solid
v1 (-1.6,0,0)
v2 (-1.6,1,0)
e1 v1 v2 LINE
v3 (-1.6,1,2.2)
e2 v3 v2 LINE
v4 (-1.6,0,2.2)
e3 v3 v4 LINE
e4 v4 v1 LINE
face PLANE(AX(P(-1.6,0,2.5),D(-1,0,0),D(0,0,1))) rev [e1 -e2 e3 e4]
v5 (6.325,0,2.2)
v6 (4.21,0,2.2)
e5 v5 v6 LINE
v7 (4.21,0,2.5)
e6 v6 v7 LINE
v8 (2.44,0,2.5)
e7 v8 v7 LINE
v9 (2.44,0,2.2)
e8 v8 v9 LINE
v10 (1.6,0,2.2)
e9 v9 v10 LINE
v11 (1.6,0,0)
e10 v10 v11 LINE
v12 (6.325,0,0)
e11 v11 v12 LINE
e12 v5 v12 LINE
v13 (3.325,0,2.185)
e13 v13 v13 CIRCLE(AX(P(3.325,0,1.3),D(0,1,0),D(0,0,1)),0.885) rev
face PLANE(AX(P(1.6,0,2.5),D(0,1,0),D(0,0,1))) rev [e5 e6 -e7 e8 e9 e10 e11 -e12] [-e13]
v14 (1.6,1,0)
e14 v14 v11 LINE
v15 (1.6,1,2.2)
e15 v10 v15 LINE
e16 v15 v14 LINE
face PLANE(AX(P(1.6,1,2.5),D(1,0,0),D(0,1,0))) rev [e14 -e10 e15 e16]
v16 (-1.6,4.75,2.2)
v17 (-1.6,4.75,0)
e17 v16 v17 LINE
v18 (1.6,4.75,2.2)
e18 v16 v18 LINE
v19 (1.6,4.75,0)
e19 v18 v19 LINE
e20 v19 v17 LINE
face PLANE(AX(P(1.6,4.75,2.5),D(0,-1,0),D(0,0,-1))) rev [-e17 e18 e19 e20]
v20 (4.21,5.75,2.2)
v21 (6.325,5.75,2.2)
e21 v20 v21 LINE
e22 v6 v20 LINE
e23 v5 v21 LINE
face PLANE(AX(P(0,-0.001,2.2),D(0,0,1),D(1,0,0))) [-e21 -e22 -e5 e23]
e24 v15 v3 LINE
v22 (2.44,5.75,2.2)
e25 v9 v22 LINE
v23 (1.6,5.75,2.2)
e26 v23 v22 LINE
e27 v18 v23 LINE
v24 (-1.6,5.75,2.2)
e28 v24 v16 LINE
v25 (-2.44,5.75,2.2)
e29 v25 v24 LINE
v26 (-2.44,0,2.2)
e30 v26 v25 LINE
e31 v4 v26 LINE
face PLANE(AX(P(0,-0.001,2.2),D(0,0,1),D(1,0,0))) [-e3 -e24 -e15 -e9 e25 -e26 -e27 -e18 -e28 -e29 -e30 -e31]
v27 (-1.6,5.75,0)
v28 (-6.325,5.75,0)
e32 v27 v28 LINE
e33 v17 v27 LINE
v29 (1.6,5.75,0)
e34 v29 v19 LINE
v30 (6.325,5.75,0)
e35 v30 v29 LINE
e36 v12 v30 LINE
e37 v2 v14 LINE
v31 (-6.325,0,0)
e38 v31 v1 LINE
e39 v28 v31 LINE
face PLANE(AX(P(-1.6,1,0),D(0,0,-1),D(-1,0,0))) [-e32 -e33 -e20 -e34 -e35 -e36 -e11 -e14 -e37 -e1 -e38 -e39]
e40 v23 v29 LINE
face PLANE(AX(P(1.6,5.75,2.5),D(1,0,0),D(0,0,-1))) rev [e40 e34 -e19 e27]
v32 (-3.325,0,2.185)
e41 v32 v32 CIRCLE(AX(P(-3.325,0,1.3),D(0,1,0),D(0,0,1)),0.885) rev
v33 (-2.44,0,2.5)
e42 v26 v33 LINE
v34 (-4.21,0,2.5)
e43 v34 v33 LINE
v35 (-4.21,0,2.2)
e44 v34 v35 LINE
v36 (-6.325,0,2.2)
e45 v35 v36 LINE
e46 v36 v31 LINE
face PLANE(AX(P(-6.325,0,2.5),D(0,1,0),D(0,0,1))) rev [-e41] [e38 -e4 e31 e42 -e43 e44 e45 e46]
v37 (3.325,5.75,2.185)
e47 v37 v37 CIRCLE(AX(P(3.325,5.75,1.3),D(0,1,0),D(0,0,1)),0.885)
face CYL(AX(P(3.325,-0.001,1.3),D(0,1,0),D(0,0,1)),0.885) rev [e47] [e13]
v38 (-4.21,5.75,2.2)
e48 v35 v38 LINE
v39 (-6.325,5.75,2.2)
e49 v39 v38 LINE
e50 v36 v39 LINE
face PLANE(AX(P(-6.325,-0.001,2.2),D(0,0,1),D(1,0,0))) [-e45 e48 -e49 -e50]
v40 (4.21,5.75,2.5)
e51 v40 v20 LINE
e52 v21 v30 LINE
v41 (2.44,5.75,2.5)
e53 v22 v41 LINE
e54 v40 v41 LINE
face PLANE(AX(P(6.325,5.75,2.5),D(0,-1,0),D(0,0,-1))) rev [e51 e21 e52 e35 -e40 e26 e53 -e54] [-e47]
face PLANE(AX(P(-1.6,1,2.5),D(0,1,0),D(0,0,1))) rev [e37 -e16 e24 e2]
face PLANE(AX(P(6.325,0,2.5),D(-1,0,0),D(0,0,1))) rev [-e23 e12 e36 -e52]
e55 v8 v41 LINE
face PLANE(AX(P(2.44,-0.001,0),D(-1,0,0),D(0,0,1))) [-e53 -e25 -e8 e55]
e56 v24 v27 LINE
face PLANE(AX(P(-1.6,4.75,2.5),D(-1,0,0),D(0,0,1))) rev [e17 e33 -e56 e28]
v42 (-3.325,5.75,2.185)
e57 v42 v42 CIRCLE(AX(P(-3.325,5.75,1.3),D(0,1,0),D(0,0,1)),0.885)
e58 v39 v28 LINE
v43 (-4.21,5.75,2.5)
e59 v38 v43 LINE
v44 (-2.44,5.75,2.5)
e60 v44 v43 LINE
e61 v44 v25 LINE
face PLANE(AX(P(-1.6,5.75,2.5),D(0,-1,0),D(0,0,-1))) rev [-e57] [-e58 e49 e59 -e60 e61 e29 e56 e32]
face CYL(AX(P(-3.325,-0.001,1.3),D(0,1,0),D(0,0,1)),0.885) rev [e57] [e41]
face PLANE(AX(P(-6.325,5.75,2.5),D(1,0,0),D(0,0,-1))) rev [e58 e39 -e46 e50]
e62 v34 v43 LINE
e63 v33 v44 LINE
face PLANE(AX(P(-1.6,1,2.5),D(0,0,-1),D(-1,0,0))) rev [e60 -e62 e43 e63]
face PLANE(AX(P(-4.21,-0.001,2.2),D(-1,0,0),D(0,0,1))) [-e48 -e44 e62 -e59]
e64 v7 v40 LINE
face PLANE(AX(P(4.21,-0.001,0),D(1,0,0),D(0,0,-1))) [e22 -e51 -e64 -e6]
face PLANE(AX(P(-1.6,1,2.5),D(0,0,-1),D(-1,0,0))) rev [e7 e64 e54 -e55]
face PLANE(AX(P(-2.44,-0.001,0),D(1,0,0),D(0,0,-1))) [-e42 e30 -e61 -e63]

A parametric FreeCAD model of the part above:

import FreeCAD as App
import Part
import Sketcher
from FreeCAD import Vector
Q = App.Units.Quantity

doc = App.newDocument("Part")
params = doc.addObject("Spreadsheet::Sheet", "Params")
for row, (alias, value) in enumerate([
    ("sketch1_height", "1 mm"),
    ("sketch1_width", "3.2 mm"),
    ("sketch1_height2", "5.75 mm"),
    ("pad1_length", "2.5 mm"),
    ("sketch2_diameter", "1.77 mm"),
    ("sketch3_diameter", "1.77 mm"),
    ("sketch4_height", "0.3 mm"),
    ("sketch4_width", "4.04 mm"),
    ("pocket3_length", "5.75 mm"),
    ("sketch5_height", "0.3 mm"),
    ("sketch5_width", "0.84 mm"),
    ("sketch6_height", "0.3 mm"),
    ("sketch7_height", "0.3 mm"),
], start=1):
    params.set(f"A{row}", alias)
    params.set(f"B{row}", "=" + value)
    params.setAlias(f"B{row}", alias)

body = doc.addObject("PartDesign::Body", "Body")

# Sketch on XY plane
sketch1 = body.newObject("Sketcher::SketchObject", "Sketch")
sketch1.AttachmentSupport = (doc.getObject("XY_Plane"), [""])
sketch1.MapMode = "FlatFace"
sketch1.addGeometry([
    Part.LineSegment(Vector(-1.6, 1, 0), Vector(1.6, 1, 0)),  # 0
    Part.LineSegment(Vector(1.6, 1, 0), Vector(1.6, 0, 0)),  # 1
    Part.LineSegment(Vector(1.6, 0, 0), Vector(6.3, 0, 0)),  # 2
    Part.LineSegment(Vector(6.3, 0, 0), Vector(6.3, 5.8, 0)),  # 3
    Part.LineSegment(Vector(6.3, 5.8, 0), Vector(1.6, 5.8, 0)),  # 4
    Part.LineSegment(Vector(1.6, 5.8, 0), Vector(1.6, 4.8, 0)),  # 5
    Part.LineSegment(Vector(1.6, 4.8, 0), Vector(-1.6, 4.8, 0)),  # 6
    Part.LineSegment(Vector(-1.6, 4.8, 0), Vector(-1.6, 5.8, 0)),  # 7
    Part.LineSegment(Vector(-1.6, 5.8, 0), Vector(-6.3, 5.8, 0)),  # 8
    Part.LineSegment(Vector(-6.3, 5.8, 0), Vector(-6.3, 0, 0)),  # 9
    Part.LineSegment(Vector(-6.3, 0, 0), Vector(-1.6, 0, 0)),  # 10
    Part.LineSegment(Vector(-1.6, 0, 0), Vector(-1.6, 1, 0)),  # 11
], False)
sketch1.addConstraint([
    Sketcher.Constraint("Coincident", 0, 2, 1, 1),
    Sketcher.Constraint("Coincident", 1, 2, 2, 1),
    Sketcher.Constraint("Coincident", 2, 2, 3, 1),
    Sketcher.Constraint("Coincident", 3, 2, 4, 1),
    Sketcher.Constraint("Coincident", 4, 2, 5, 1),
    Sketcher.Constraint("Coincident", 5, 2, 6, 1),
    Sketcher.Constraint("Coincident", 6, 2, 7, 1),
    Sketcher.Constraint("Coincident", 7, 2, 8, 1),
    Sketcher.Constraint("Coincident", 8, 2, 9, 1),
    Sketcher.Constraint("Coincident", 9, 2, 10, 1),
    Sketcher.Constraint("Coincident", 10, 2, 11, 1),
    Sketcher.Constraint("Coincident", 11, 2, 0, 1),
    Sketcher.Constraint("Horizontal", 0),
    Sketcher.Constraint("Vertical", 1),
    Sketcher.Constraint("Horizontal", 2),
    Sketcher.Constraint("Vertical", 3),
    Sketcher.Constraint("Horizontal", 4),
    Sketcher.Constraint("Vertical", 5),
    Sketcher.Constraint("Horizontal", 6),
    Sketcher.Constraint("Vertical", 7),
    Sketcher.Constraint("Horizontal", 8),
    Sketcher.Constraint("Vertical", 9),
    Sketcher.Constraint("Horizontal", 10),
    Sketcher.Constraint("Vertical", 11),
    Sketcher.Constraint("Symmetric", 2, 2, 9, 2, -1, 1),
    Sketcher.Constraint("Symmetric", 4, 2, 7, 2, -2),
    Sketcher.Constraint("Symmetric", 1, 2, 10, 2, -2),
    Sketcher.Constraint("Vertical", 1, 2, 4, 2),
    Sketcher.Constraint("Equal", 1, 5),
    Sketcher.Constraint("DistanceY", 1, 2, 1, 1, Q("1 mm")),
    Sketcher.Constraint("DistanceX", 0, 1, 0, 2, Q("3.2 mm")),
    Sketcher.Constraint("DistanceY", 3, 1, 3, 2, Q("5.75 mm")),
    Sketcher.Constraint("DistanceX", 2, 1, 2, 2, Q("4.725 mm")),
])
sketch1.setExpression("Constraints[29]", "Params.sketch1_height")
sketch1.setExpression("Constraints[30]", "Params.sketch1_width")
sketch1.setExpression("Constraints[31]", "Params.sketch1_height2")
pad1 = body.newObject("PartDesign::Pad", "Pad")
pad1.Profile = sketch1
pad1.setExpression("Length", "Params.pad1_length")

# Sketch on XZ plane
sketch2 = body.newObject("Sketcher::SketchObject", "Sketch001")
sketch2.AttachmentSupport = (doc.getObject("XZ_Plane"), [""])
sketch2.MapMode = "FlatFace"
sketch2.AttachmentOffset = App.Placement(Vector(0, 0, -5.75), App.Rotation())
sketch2.addGeometry(Part.Circle(Vector(-3.3, 1.3, 0), Vector(0, 0, 1), 0.9), False)
sketch2.addConstraint([
    Sketcher.Constraint("Diameter", 0, Q("1.77 mm")),
    Sketcher.Constraint("DistanceY", -1, 1, 0, 3, Q("1.3 mm")),
    Sketcher.Constraint("DistanceX", 0, 3, -1, 1, Q("3.325 mm")),
])
sketch2.setExpression("Constraints[0]", "Params.sketch2_diameter")
pocket1 = body.newObject("PartDesign::Pocket", "Pocket")
pocket1.Profile = sketch2
pocket1.Type = "UpToFirst"
pocket1.Reversed = True

# Sketch on XZ plane
sketch3 = body.newObject("Sketcher::SketchObject", "Sketch002")
sketch3.AttachmentSupport = (doc.getObject("XZ_Plane"), [""])
sketch3.MapMode = "FlatFace"
sketch3.AttachmentOffset = App.Placement(Vector(0, 0, -5.75), App.Rotation())
sketch3.addGeometry(Part.Circle(Vector(3.3, 1.3, 0), Vector(0, 0, 1), 0.9), False)
sketch3.addConstraint([
    Sketcher.Constraint("Diameter", 0, Q("1.77 mm")),
    Sketcher.Constraint("DistanceY", -1, 1, 0, 3, Q("1.3 mm")),
    Sketcher.Constraint("DistanceX", -1, 1, 0, 3, Q("3.325 mm")),
])
sketch3.setExpression("Constraints[0]", "Params.sketch3_diameter")
pocket2 = body.newObject("PartDesign::Pocket", "Pocket001")
pocket2.Profile = sketch3
pocket2.Type = "UpToFirst"
pocket2.Reversed = True

# Sketch on XZ plane
sketch4 = body.newObject("Sketcher::SketchObject", "Sketch003")
sketch4.AttachmentSupport = (doc.getObject("XZ_Plane"), [""])
sketch4.MapMode = "FlatFace"
sketch4.AttachmentOffset = App.Placement(Vector(0, 0, -5.75), App.Rotation())
sketch4.addGeometry([
    Part.LineSegment(Vector(2.44, 2.5, 0), Vector(2.44, 2.2, 0)),
    Part.LineSegment(Vector(2.44, 2.2, 0), Vector(-1.6, 2.2, 0)),
    Part.LineSegment(Vector(-1.6, 2.2, 0), Vector(-1.6, 2.5, 0)),
    Part.LineSegment(Vector(-1.6, 2.5, 0), Vector(2.44, 2.5, 0)),
], False)
sketch4.addConstraint([
    Sketcher.Constraint("Coincident", 0, 2, 1, 1),
    Sketcher.Constraint("Coincident", 1, 2, 2, 1),
    Sketcher.Constraint("Coincident", 2, 2, 3, 1),
    Sketcher.Constraint("Coincident", 3, 2, 0, 1),
    Sketcher.Constraint("Vertical", 0),
    Sketcher.Constraint("Horizontal", 1),
    Sketcher.Constraint("Vertical", 2),
    Sketcher.Constraint("Horizontal", 3),
    Sketcher.Constraint("DistanceY", 0, 2, 0, 1, Q("0.3 mm")),
    Sketcher.Constraint("DistanceX", 1, 2, 1, 1, Q("4.04 mm")),
    Sketcher.Constraint("DistanceY", -1, 1, 0, 2, Q("2.2 mm")),
    Sketcher.Constraint("DistanceX", 1, 2, -1, 1, Q("1.6 mm")),
])
sketch4.setExpression("Constraints[8]", "Params.sketch4_height")
sketch4.setExpression("Constraints[9]", "Params.sketch4_width")
pocket3 = body.newObject("PartDesign::Pocket", "Pocket002")
pocket3.Profile = sketch4
pocket3.setExpression("Length", "Params.pocket3_length")
pocket3.Reversed = True

# Sketch on XZ plane
sketch5 = body.newObject("Sketcher::SketchObject", "Sketch004")
sketch5.AttachmentSupport = (doc.getObject("XZ_Plane"), [""])
sketch5.MapMode = "FlatFace"
sketch5.AttachmentOffset = App.Placement(Vector(0, 0, -5.75), App.Rotation())
sketch5.addGeometry([
    Part.LineSegment(Vector(-1.6, 2.5, 0), Vector(-1.6, 2.2, 0)),
    Part.LineSegment(Vector(-1.6, 2.2, 0), Vector(-2.44, 2.2, 0)),
    Part.LineSegment(Vector(-2.44, 2.2, 0), Vector(-2.44, 2.5, 0)),
    Part.LineSegment(Vector(-2.44, 2.5, 0), Vector(-1.6, 2.5, 0)),
], False)
sketch5.addConstraint([
    Sketcher.Constraint("Coincident", 0, 2, 1, 1),
    Sketcher.Constraint("Coincident", 1, 2, 2, 1),
    Sketcher.Constraint("Coincident", 2, 2, 3, 1),
    Sketcher.Constraint("Coincident", 3, 2, 0, 1),
    Sketcher.Constraint("Vertical", 0),
    Sketcher.Constraint("Horizontal", 1),
    Sketcher.Constraint("Vertical", 2),
    Sketcher.Constraint("Horizontal", 3),
    Sketcher.Constraint("DistanceY", 0, 2, 0, 1, Q("0.3 mm")),
    Sketcher.Constraint("DistanceX", 1, 2, 1, 1, Q("0.84 mm")),
    Sketcher.Constraint("DistanceX", 0, 2, -1, 1, Q("1.6 mm")),
    Sketcher.Constraint("DistanceY", -1, 1, 0, 2, Q("2.2 mm")),
])
sketch5.setExpression("Constraints[8]", "Params.sketch5_height")
sketch5.setExpression("Constraints[9]", "Params.sketch5_width")
pocket4 = body.newObject("PartDesign::Pocket", "Pocket003")
pocket4.Profile = sketch5
pocket4.Type = "UpToFirst"
pocket4.Reversed = True

# Sketch on XZ plane
sketch6 = body.newObject("Sketcher::SketchObject", "Sketch005")
sketch6.AttachmentSupport = (doc.getObject("XZ_Plane"), [""])
sketch6.MapMode = "FlatFace"
sketch6.AttachmentOffset = App.Placement(Vector(0, 0, -5.75), App.Rotation())
sketch6.addGeometry([
    Part.LineSegment(Vector(6.33, 2.5, 0), Vector(6.33, 2.2, 0)),
    Part.LineSegment(Vector(6.33, 2.2, 0), Vector(4.21, 2.2, 0)),
    Part.LineSegment(Vector(4.21, 2.2, 0), Vector(4.21, 2.5, 0)),
    Part.LineSegment(Vector(4.21, 2.5, 0), Vector(6.33, 2.5, 0)),
], False)
sketch6.addConstraint([
    Sketcher.Constraint("Coincident", 0, 2, 1, 1),
    Sketcher.Constraint("Coincident", 1, 2, 2, 1),
    Sketcher.Constraint("Coincident", 2, 2, 3, 1),
    Sketcher.Constraint("Coincident", 3, 2, 0, 1),
    Sketcher.Constraint("Vertical", 0),
    Sketcher.Constraint("Horizontal", 1),
    Sketcher.Constraint("Vertical", 2),
    Sketcher.Constraint("Horizontal", 3),
    Sketcher.Constraint("DistanceY", 0, 2, 0, 1, Q("0.3 mm")),
    Sketcher.Constraint("DistanceY", -1, 1, 0, 2, Q("2.2 mm")),
    Sketcher.Constraint("DistanceX", 1, 2, 1, 1, Q("2.115 mm")),
    Sketcher.Constraint("DistanceX", -1, 1, 1, 2, Q("4.21 mm")),
])
sketch6.setExpression("Constraints[8]", "Params.sketch6_height")
pocket5 = body.newObject("PartDesign::Pocket", "Pocket004")
pocket5.Profile = sketch6
pocket5.Type = "UpToFirst"
pocket5.Reversed = True

# Sketch on XZ plane
sketch7 = body.newObject("Sketcher::SketchObject", "Sketch006")
sketch7.AttachmentSupport = (doc.getObject("XZ_Plane"), [""])
sketch7.MapMode = "FlatFace"
sketch7.AttachmentOffset = App.Placement(Vector(0, 0, -5.75), App.Rotation())
sketch7.addGeometry([
    Part.LineSegment(Vector(-4.21, 2.5, 0), Vector(-4.21, 2.2, 0)),
    Part.LineSegment(Vector(-4.21, 2.2, 0), Vector(-6.33, 2.2, 0)),
    Part.LineSegment(Vector(-6.33, 2.2, 0), Vector(-6.33, 2.5, 0)),
    Part.LineSegment(Vector(-6.33, 2.5, 0), Vector(-4.21, 2.5, 0)),
], False)
sketch7.addConstraint([
    Sketcher.Constraint("Coincident", 0, 2, 1, 1),
    Sketcher.Constraint("Coincident", 1, 2, 2, 1),
    Sketcher.Constraint("Coincident", 2, 2, 3, 1),
    Sketcher.Constraint("Coincident", 3, 2, 0, 1),
    Sketcher.Constraint("Vertical", 0),
    Sketcher.Constraint("Horizontal", 1),
    Sketcher.Constraint("Vertical", 2),
    Sketcher.Constraint("Horizontal", 3),
    Sketcher.Constraint("DistanceY", 0, 2, 0, 1, Q("0.3 mm")),
    Sketcher.Constraint("DistanceY", -1, 1, 0, 2, Q("2.2 mm")),
    Sketcher.Constraint("DistanceX", 1, 2, 1, 1, Q("2.115 mm")),
    Sketcher.Constraint("DistanceX", 0, 2, -1, 1, Q("4.21 mm")),
])
sketch7.setExpression("Constraints[8]", "Params.sketch7_height")
pocket6 = body.newObject("PartDesign::Pocket", "Pocket005")
pocket6.Profile = sketch7
pocket6.Type = "UpToFirst"
pocket6.Reversed = True

doc.recompute()
